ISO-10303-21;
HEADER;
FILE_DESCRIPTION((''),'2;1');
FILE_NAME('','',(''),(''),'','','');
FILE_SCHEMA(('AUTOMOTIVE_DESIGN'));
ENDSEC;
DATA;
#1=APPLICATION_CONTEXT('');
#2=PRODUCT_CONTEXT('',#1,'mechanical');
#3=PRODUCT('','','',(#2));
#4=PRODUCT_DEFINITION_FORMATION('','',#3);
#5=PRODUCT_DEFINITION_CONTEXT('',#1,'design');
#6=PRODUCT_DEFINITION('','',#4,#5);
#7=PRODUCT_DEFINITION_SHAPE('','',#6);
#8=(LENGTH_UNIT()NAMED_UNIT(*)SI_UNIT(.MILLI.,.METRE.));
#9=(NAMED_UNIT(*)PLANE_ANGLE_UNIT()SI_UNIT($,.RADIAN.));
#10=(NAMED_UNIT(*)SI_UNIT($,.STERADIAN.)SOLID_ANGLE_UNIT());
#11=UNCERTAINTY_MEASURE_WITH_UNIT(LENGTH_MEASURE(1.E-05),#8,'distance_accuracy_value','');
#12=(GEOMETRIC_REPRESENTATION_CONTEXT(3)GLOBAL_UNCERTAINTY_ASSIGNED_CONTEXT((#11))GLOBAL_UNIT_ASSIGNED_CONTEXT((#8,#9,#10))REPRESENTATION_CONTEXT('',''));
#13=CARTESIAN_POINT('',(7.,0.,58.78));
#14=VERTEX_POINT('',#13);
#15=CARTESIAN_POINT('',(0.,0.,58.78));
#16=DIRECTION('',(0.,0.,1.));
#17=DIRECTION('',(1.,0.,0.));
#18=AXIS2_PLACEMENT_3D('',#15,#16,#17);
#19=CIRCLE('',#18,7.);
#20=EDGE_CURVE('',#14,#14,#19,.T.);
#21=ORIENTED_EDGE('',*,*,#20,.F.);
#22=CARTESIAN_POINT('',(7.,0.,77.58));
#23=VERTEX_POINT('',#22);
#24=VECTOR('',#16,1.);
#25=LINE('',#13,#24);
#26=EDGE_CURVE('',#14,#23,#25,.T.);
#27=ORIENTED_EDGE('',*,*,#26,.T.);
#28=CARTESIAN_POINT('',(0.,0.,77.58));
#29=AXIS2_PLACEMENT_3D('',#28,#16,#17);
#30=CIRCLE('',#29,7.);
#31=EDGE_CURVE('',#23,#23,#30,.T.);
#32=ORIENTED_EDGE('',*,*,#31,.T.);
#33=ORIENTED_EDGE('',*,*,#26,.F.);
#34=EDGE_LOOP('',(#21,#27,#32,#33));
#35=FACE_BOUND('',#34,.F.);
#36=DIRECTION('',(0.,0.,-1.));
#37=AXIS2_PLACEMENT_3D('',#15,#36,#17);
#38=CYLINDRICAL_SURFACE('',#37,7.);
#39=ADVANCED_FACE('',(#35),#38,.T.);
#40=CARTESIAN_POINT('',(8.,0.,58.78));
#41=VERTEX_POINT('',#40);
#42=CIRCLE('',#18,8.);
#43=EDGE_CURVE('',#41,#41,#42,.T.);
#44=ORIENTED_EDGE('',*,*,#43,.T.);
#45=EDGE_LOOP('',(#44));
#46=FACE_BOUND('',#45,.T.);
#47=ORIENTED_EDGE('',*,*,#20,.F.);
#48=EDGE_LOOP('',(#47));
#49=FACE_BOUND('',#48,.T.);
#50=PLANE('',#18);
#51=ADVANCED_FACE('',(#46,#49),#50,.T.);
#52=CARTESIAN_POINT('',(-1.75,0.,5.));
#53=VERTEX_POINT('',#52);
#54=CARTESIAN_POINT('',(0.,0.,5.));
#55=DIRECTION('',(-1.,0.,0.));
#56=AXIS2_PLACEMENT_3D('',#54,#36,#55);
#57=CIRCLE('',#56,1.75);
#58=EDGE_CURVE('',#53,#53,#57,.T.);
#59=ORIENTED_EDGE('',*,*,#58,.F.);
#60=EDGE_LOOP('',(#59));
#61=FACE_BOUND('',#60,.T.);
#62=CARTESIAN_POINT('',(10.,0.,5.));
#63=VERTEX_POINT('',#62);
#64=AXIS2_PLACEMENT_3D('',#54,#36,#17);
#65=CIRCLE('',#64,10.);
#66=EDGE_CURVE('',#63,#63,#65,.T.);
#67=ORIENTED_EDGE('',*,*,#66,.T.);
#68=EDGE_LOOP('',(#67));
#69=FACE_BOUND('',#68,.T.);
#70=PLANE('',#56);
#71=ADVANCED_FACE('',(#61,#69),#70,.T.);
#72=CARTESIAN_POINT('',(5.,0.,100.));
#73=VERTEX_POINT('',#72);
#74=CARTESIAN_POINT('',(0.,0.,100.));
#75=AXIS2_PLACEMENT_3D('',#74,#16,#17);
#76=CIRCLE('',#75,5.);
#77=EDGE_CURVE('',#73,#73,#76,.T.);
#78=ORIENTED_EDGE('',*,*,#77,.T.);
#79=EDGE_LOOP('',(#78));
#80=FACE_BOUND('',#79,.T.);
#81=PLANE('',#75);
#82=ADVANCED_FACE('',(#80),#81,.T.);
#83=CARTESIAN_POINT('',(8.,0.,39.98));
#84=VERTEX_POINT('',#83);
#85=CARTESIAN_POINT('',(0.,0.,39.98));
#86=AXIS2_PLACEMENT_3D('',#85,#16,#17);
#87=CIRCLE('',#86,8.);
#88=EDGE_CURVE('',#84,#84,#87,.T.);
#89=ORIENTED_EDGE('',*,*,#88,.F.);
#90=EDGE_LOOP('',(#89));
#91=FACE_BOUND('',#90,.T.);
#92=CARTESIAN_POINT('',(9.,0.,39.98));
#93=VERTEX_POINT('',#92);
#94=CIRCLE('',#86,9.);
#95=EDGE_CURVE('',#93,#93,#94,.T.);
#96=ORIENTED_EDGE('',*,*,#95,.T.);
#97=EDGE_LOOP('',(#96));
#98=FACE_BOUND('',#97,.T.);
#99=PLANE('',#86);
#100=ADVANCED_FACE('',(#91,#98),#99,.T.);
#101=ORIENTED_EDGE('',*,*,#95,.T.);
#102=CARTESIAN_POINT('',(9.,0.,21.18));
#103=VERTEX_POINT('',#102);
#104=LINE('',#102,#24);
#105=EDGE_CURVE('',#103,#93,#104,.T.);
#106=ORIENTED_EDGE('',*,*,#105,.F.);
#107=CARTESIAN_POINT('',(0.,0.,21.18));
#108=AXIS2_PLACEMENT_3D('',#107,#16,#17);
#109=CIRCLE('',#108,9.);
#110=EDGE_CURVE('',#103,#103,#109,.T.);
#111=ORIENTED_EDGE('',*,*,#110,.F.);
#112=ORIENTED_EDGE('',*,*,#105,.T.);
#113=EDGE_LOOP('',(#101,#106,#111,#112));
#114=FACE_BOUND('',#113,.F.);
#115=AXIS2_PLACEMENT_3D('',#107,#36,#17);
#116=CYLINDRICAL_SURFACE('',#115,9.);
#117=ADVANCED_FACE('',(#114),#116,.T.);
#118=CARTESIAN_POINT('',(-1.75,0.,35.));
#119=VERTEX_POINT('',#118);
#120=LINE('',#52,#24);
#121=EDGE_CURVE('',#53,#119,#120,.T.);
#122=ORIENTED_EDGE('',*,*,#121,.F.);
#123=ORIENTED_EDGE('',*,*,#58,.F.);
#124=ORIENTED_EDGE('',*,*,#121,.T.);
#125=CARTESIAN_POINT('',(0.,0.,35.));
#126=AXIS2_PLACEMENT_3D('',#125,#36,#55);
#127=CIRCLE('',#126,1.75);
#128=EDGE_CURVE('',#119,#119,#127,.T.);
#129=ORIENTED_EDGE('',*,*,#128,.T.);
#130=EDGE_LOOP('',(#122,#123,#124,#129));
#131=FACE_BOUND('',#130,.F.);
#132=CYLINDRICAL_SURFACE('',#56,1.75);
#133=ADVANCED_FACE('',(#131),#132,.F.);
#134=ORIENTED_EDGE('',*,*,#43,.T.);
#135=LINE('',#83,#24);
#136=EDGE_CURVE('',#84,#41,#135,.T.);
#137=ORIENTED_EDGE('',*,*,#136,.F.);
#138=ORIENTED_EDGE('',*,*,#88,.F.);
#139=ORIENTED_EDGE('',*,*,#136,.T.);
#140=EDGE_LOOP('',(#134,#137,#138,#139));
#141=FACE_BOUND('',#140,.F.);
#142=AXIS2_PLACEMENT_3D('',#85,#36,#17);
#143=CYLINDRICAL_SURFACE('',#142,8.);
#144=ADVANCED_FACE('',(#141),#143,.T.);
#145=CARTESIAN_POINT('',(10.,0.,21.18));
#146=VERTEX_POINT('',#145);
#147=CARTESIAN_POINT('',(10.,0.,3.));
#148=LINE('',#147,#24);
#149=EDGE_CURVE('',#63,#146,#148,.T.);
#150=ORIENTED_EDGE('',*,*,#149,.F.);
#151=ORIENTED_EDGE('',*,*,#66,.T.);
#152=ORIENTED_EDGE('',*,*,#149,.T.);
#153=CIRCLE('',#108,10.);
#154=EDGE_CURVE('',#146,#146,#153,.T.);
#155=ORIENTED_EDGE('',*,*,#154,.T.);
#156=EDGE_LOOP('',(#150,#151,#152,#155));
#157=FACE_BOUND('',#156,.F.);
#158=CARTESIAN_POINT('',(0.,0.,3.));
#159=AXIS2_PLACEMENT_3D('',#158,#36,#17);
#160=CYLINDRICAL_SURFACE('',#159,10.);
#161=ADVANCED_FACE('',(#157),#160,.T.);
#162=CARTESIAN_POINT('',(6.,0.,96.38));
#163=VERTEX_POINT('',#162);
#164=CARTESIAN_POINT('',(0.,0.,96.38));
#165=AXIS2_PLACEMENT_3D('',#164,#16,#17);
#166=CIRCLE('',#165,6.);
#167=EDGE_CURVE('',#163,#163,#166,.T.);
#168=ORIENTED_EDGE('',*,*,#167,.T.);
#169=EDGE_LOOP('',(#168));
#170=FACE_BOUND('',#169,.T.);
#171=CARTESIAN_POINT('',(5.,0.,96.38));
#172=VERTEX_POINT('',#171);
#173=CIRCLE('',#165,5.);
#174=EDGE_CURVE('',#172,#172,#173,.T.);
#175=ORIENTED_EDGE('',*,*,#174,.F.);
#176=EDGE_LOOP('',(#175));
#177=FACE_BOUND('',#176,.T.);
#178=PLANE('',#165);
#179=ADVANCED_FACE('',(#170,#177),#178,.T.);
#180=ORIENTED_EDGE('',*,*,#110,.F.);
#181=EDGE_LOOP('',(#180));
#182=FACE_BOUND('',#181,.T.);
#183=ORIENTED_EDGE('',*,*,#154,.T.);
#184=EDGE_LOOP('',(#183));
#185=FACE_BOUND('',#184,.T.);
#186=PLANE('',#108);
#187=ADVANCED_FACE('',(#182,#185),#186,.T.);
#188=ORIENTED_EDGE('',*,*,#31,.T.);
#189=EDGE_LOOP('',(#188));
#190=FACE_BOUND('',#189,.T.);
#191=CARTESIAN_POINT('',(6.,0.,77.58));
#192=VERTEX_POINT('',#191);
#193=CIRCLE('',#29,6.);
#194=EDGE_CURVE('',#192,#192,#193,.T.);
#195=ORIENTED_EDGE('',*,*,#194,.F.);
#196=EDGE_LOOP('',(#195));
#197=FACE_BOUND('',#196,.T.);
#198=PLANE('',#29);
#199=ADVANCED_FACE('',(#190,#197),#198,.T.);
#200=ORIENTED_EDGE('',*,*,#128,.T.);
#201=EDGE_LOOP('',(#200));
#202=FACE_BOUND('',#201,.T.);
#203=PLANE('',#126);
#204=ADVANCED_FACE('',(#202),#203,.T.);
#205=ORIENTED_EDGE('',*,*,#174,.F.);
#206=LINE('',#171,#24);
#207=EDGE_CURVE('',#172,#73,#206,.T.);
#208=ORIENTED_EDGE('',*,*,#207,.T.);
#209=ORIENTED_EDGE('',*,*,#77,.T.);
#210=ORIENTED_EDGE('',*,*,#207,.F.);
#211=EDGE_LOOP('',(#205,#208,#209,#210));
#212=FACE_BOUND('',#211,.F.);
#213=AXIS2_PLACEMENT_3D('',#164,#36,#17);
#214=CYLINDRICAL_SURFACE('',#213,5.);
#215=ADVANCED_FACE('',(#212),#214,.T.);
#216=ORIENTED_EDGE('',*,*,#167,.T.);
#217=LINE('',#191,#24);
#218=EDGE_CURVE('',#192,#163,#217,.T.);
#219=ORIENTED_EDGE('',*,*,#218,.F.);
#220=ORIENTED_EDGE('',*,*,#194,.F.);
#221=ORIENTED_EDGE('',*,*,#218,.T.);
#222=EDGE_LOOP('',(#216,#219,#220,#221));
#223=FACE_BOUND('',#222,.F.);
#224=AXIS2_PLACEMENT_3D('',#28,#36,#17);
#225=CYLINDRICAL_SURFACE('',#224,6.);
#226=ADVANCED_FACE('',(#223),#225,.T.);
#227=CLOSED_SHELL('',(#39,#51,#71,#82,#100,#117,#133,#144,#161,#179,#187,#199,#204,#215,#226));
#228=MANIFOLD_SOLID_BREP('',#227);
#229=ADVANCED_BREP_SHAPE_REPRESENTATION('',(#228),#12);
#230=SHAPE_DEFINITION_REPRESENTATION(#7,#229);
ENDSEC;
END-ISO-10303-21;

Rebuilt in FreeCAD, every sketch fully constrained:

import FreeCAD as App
import Part
import Sketcher

V = App.Vector
Q = App.Units.Quantity

doc = App.newDocument("Part")
body = doc.addObject("PartDesign::Body", "Body")

sketch1 = body.newObject("Sketcher::SketchObject", "Sketch")
sketch1.AttachmentSupport = (doc.getObject("XY_Plane"), [""])
sketch1.MapMode = "FlatFace"
sketch1.addGeometry(Part.Circle(V(0, 0, 0), V(0, 0, 1), 15), False)
sketch1.addConstraint([
    Sketcher.Constraint("Coincident", 0, 3, -1, 1),
    Sketcher.Constraint("Diameter", 0, Q("30 mm")),
])
pad1 = body.newObject("PartDesign::Pad", "Pad")
pad1.Profile = sketch1
pad1.Length = 3

sketch2 = body.newObject("Sketcher::SketchObject", "Sketch001")
sketch2.AttachmentSupport = (doc.getObject("XY_Plane"), [""])
sketch2.MapMode = "FlatFace"
sketch2.AttachmentOffset = App.Placement(V(0, 0, 3), App.Rotation())
sketch2.addGeometry(Part.Circle(V(0, 0, 0), V(0, 0, 1), 10), False)
sketch2.addConstraint([
    Sketcher.Constraint("Coincident", 0, 3, -1, 1),
    Sketcher.Constraint("Diameter", 0, Q("20 mm")),
])
pad2 = body.newObject("PartDesign::Pad", "Pad001")
pad2.Profile = sketch2
pad2.Length = 18.18

sketch3 = body.newObject("Sketcher::SketchObject", "Sketch002")
sketch3.AttachmentSupport = (doc.getObject("XY_Plane"), [""])
sketch3.MapMode = "FlatFace"
sketch3.AttachmentOffset = App.Placement(V(0, 0, 21.18), App.Rotation())
sketch3.addGeometry(Part.Circle(V(0, 0, 0), V(0, 0, 1), 9), False)
sketch3.addConstraint([
    Sketcher.Constraint("Coincident", 0, 3, -1, 1),
    Sketcher.Constraint("Diameter", 0, Q("18 mm")),
])
pad3 = body.newObject("PartDesign::Pad", "Pad002")
pad3.Profile = sketch3
pad3.Length = 18.8

sketch4 = body.newObject("Sketcher::SketchObject", "Sketch003")
sketch4.AttachmentSupport = (doc.getObject("XY_Plane"), [""])
sketch4.MapMode = "FlatFace"
sketch4.AttachmentOffset = App.Placement(V(0, 0, 39.98), App.Rotation())
sketch4.addGeometry(Part.Circle(V(0, 0, 0), V(0, 0, 1), 8), False)
sketch4.addConstraint([
    Sketcher.Constraint("Coincident", 0, 3, -1, 1),
    Sketcher.Constraint("Diameter", 0, Q("16 mm")),
])
pad4 = body.newObject("PartDesign::Pad", "Pad003")
pad4.Profile = sketch4
pad4.Length = 18.8

sketch5 = body.newObject("Sketcher::SketchObject", "Sketch004")
sketch5.AttachmentSupport = (doc.getObject("XY_Plane"), [""])
sketch5.MapMode = "FlatFace"
sketch5.AttachmentOffset = App.Placement(V(0, 0, 58.78), App.Rotation())
sketch5.addGeometry(Part.Circle(V(0, 0, 0), V(0, 0, 1), 7), False)
sketch5.addConstraint([
    Sketcher.Constraint("Coincident", 0, 3, -1, 1),
    Sketcher.Constraint("Diameter", 0, Q("14 mm")),
])
pad5 = body.newObject("PartDesign::Pad", "Pad004")
pad5.Profile = sketch5
pad5.Length = 18.8

sketch6 = body.newObject("Sketcher::SketchObject", "Sketch005")
sketch6.AttachmentSupport = (doc.getObject("XY_Plane"), [""])
sketch6.MapMode = "FlatFace"
sketch6.AttachmentOffset = App.Placement(V(0, 0, 77.58), App.Rotation())
sketch6.addGeometry(Part.Circle(V(0, 0, 0), V(0, 0, 1), 6), False)
sketch6.addConstraint([
    Sketcher.Constraint("Coincident", 0, 3, -1, 1),
    Sketcher.Constraint("Diameter", 0, Q("12 mm")),
])
pad6 = body.newObject("PartDesign::Pad", "Pad005")
pad6.Profile = sketch6
pad6.Length = 18.8

sketch7 = body.newObject("Sketcher::SketchObject", "Sketch006")
sketch7.AttachmentSupport = (doc.getObject("XY_Plane"), [""])
sketch7.MapMode = "FlatFace"
sketch7.AttachmentOffset = App.Placement(V(0, 0, 96.38), App.Rotation())
sketch7.addGeometry(Part.Circle(V(0, 0, 0), V(0, 0, 1), 5), False)
sketch7.addConstraint([
    Sketcher.Constraint("Coincident", 0, 3, -1, 1),
    Sketcher.Constraint("Diameter", 0, Q("10 mm")),
])
pad7 = body.newObject("PartDesign::Pad", "Pad006")
pad7.Profile = sketch7
pad7.Length = 3.62

sketch8 = body.newObject("Sketcher::SketchObject", "Sketch007")
sketch8.AttachmentSupport = (doc.getObject("XY_Plane"), [""])
sketch8.MapMode = "FlatFace"
sketch8.addGeometry(Part.Circle(V(0, 0, 0), V(0, 0, 1), 20), False)
sketch8.addConstraint([
    Sketcher.Constraint("Coincident", 0, 3, -1, 1),
    Sketcher.Constraint("Diameter", 0, Q("40 mm")),
])
pocket1 = body.newObject("PartDesign::Pocket", "Pocket")
pocket1.Profile = sketch8
pocket1.Length = 5
pocket1.Reversed = True

sketch9 = body.newObject("Sketcher::SketchObject", "Sketch008")
sketch9.AttachmentSupport = (doc.getObject("XY_Plane"), [""])
sketch9.MapMode = "FlatFace"
sketch9.AttachmentOffset = App.Placement(V(0, 0, 5), App.Rotation())
sketch9.addGeometry(Part.Circle(V(0, 0, 0), V(0, 0, 1), 1.8), False)
sketch9.addConstraint([
    Sketcher.Constraint("Coincident", 0, 3, -1, 1),
    Sketcher.Constraint("Diameter", 0, Q("3.5 mm")),
])
pocket2 = body.newObject("PartDesign::Pocket", "Pocket001")
pocket2.Profile = sketch9
pocket2.Length = 30
pocket2.Reversed = True

doc.recompute()
